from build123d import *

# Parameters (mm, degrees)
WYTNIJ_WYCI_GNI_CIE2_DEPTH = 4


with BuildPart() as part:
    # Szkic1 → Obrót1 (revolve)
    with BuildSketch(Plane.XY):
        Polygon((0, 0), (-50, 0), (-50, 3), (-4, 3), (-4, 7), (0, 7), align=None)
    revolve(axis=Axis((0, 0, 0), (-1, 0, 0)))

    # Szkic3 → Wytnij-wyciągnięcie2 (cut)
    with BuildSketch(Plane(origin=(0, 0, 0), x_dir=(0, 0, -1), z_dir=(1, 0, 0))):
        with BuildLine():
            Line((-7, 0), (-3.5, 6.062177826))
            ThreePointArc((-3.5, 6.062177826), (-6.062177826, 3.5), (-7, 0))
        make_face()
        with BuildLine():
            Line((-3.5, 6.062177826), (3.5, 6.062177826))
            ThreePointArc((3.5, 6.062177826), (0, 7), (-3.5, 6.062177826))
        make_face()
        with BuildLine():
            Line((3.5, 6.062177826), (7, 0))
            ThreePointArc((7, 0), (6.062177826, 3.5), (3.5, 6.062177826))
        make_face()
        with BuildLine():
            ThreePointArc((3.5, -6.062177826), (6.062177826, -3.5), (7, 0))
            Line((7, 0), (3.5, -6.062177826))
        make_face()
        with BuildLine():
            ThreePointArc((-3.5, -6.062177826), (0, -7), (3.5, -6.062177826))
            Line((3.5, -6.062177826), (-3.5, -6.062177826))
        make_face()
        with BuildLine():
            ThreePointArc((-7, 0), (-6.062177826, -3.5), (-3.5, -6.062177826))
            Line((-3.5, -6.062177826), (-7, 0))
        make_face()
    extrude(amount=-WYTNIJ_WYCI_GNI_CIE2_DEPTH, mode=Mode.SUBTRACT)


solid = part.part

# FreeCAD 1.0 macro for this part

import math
import FreeCAD as App
import Part
import Sketcher

V = App.Vector
Q = App.Units.Quantity

doc = App.newDocument("Part")
params = doc.addObject("Spreadsheet::Sheet", "Params")
for row, (alias, value) in enumerate([
    ("sketch1_width", "50 mm"),
    ("sketch1_width2", "4 mm"),
    ("sketch1_height", "7 mm"),
    ("revolution_angle", "360 deg"),
    ("sketch2_radius", "7 mm"),
    ("sketch2_height", "7 mm"),
    ("pocket1_length", "4 mm"),
], start=1):
    params.set(f"A{row}", alias)
    params.set(f"B{row}", "=" + value)
    params.setAlias(f"B{row}", alias)

body = doc.addObject("PartDesign::Body", "Body")

# Sketch on XY plane
sketch1 = body.newObject("Sketcher::SketchObject", "Sketch")
sketch1.AttachmentSupport = (doc.getObject("XY_Plane"), [""])
sketch1.MapMode = "FlatFace"
sketch1.addGeometry(Part.LineSegment(V(-50, 0, 0), V(0, 0, 0)), False)
sketch1.addGeometry(Part.LineSegment(V(0, 0, 0), V(0, 7, 0)), False)
sketch1.addGeometry(Part.LineSegment(V(0, 7, 0), V(-4, 7, 0)), False)
sketch1.addGeometry(Part.LineSegment(V(-4, 7, 0), V(-4, 3, 0)), False)
sketch1.addGeometry(Part.LineSegment(V(-4, 3, 0), V(-50, 3, 0)), False)
sketch1.addGeometry(Part.LineSegment(V(-50, 3, 0), V(-50, 0, 0)), False)
sketch1.addConstraint(Sketcher.Constraint("Coincident", 0, 2, 1, 1))
sketch1.addConstraint(Sketcher.Constraint("Coincident", 1, 2, 2, 1))
sketch1.addConstraint(Sketcher.Constraint("Coincident", 2, 2, 3, 1))
sketch1.addConstraint(Sketcher.Constraint("Coincident", 3, 2, 4, 1))
sketch1.addConstraint(Sketcher.Constraint("Coincident", 4, 2, 5, 1))
sketch1.addConstraint(Sketcher.Constraint("Coincident", 5, 2, 0, 1))
sketch1.addConstraint(Sketcher.Constraint("Horizontal", 0))
sketch1.addConstraint(Sketcher.Constraint("Vertical", 1))
sketch1.addConstraint(Sketcher.Constraint("Horizontal", 2))
sketch1.addConstraint(Sketcher.Constraint("Vertical", 3))
sketch1.addConstraint(Sketcher.Constraint("Horizontal", 4))
sketch1.addConstraint(Sketcher.Constraint("Vertical", 5))
sketch1.addConstraint(Sketcher.Constraint("Coincident", 0, 2, -1, 1))
sketch1.addConstraint(Sketcher.Constraint("Equal", 2, 3))
sketch1.addConstraint(Sketcher.Constraint("DistanceX", 0, 1, 0, 2, Q("50 mm")))
sketch1.addConstraint(Sketcher.Constraint("DistanceX", 2, 2, 2, 1, Q("4 mm")))
sketch1.addConstraint(Sketcher.Constraint("DistanceY", 1, 1, 1, 2, Q("7 mm")))
sketch1.setExpression("Constraints[14]", "Params.sketch1_width")
sketch1.setExpression("Constraints[15]", "Params.sketch1_width2")
sketch1.setExpression("Constraints[16]", "Params.sketch1_height")
revolution = body.newObject("PartDesign::Revolution", "Revolution")
revolution.Profile = sketch1
revolution.ReferenceAxis = (sketch1, ["H_Axis"])
revolution.setExpression("Angle", "Params.revolution_angle")

# Sketch on YZ plane
sketch2 = body.newObject("Sketcher::SketchObject", "Sketch001")
sketch2.AttachmentSupport = (doc.getObject("YZ_Plane"), [""])
sketch2.MapMode = "FlatFace"
sketch2.addGeometry(Part.LineSegment(V(0, 7, 0), V(6, 4, 0)), False)
sketch2.addGeometry(Part.ArcOfCircle(Part.Circle(V(0, 0, 0), V(0, 0, 1), 7), math.radians(30), math.radians(90)), False)
sketch2.addGeometry(Part.LineSegment(V(6, 4, 0), V(6, -4, 0)), False)
sketch2.addGeometry(Part.ArcOfCircle(Part.Circle(V(0, 0, 0), V(0, 0, 1), 7), math.radians(-30), math.radians(30)), False)
sketch2.addGeometry(Part.LineSegment(V(6, -4, 0), V(0, -7, 0)), False)
sketch2.addGeometry(Part.ArcOfCircle(Part.Circle(V(0, 0, 0), V(0, 0, 1), 7), math.radians(-90), math.radians(-30)), False)
sketch2.addGeometry(Part.ArcOfCircle(Part.Circle(V(0, 0, 0), V(0, 0, 1), 7), math.radians(-150), math.radians(-90)), False)
sketch2.addGeometry(Part.LineSegment(V(0, -7, 0), V(-6, -4, 0)), False)
sketch2.addGeometry(Part.ArcOfCircle(Part.Circle(V(0, 0, 0), V(0, 0, 1), 7), math.radians(150), math.radians(210)), False)
sketch2.addGeometry(Part.LineSegment(V(-6, -4, 0), V(-6, 4, 0)), False)
sketch2.addGeometry(Part.ArcOfCircle(Part.Circle(V(0, 0, 0), V(0, 0, 1), 7), math.radians(90), math.radians(150)), False)
sketch2.addGeometry(Part.LineSegment(V(-6, 4, 0), V(0, 7, 0)), False)
sketch2.addConstraint(Sketcher.Constraint("Coincident", 0, 1, 1, 2))
sketch2.addConstraint(Sketcher.Constraint("Coincident", 1, 1, 0, 2))
sketch2.addConstraint(Sketcher.Constraint("Coincident", 2, 1, 3, 2))
sketch2.addConstraint(Sketcher.Constraint("Coincident", 3, 1, 2, 2))
sketch2.addConstraint(Sketcher.Constraint("Coincident", 4, 1, 5, 2))
sketch2.addConstraint(Sketcher.Constraint("Coincident", 5, 1, 4, 2))
sketch2.addConstraint(Sketcher.Constraint("Coincident", 6, 1, 7, 2))
sketch2.addConstraint(Sketcher.Constraint("Coincident", 7, 1, 6, 2))
sketch2.addConstraint(Sketcher.Constraint("Coincident", 8, 1, 9, 2))
sketch2.addConstraint(Sketcher.Constraint("Coincident", 9, 1, 8, 2))
sketch2.addConstraint(Sketcher.Constraint("Coincident", 10, 1, 11, 2))
sketch2.addConstraint(Sketcher.Constraint("Coincident", 11, 1, 10, 2))
sketch2.addConstraint(Sketcher.Constraint("Vertical", 2))
sketch2.addConstraint(Sketcher.Constraint("Vertical", 9))
sketch2.addConstraint(Sketcher.Constraint("Coincident", 1, 3, -1, 1))
sketch2.addConstraint(Sketcher.Constraint("Coincident", 3, 3, -1, 1))
sketch2.addConstraint(Sketcher.Constraint("Coincident", 5, 3, -1, 1))
sketch2.addConstraint(Sketcher.Constraint("Coincident", 6, 3, -1, 1))
sketch2.addConstraint(Sketcher.Constraint("Coincident", 8, 3, -1, 1))
sketch2.addConstraint(Sketcher.Constraint("Coincident", 10, 3, -1, 1))
sketch2.addConstraint(Sketcher.Constraint("Coincident", 2, 1, 1, 1))
sketch2.addConstraint(Sketcher.Constraint("Coincident", 4, 1, 3, 1))
sketch2.addConstraint(Sketcher.Constraint("Coincident", 7, 1, 5, 1))
sketch2.addConstraint(Sketcher.Constraint("Coincident", 9, 1, 6, 1))
sketch2.addConstraint(Sketcher.Constraint("Coincident", 10, 1, 0, 1))
sketch2.addConstraint(Sketcher.Constraint("PointOnObject", 0, 1, -2))
sketch2.addConstraint(Sketcher.Constraint("PointOnObject", 5, 1, -2))
sketch2.addConstraint(Sketcher.Constraint("Parallel", 0, 7))
sketch2.addConstraint(Sketcher.Constraint("Parallel", 4, 11))
sketch2.addConstraint(Sketcher.Constraint("Radius", 1, Q("7 mm")))
sketch2.addConstraint(Sketcher.Constraint("DistanceY", 2, 2, 2, 1, Q("7 mm")))
sketch2.setExpression("Constraints[29]", "Params.sketch2_radius")
sketch2.setExpression("Constraints[30]", "Params.sketch2_height")
pocket1 = body.newObject("PartDesign::Pocket", "Pocket")
pocket1.Profile = sketch2
pocket1.setExpression("Length", "Params.pocket1_length")

doc.recompute()
